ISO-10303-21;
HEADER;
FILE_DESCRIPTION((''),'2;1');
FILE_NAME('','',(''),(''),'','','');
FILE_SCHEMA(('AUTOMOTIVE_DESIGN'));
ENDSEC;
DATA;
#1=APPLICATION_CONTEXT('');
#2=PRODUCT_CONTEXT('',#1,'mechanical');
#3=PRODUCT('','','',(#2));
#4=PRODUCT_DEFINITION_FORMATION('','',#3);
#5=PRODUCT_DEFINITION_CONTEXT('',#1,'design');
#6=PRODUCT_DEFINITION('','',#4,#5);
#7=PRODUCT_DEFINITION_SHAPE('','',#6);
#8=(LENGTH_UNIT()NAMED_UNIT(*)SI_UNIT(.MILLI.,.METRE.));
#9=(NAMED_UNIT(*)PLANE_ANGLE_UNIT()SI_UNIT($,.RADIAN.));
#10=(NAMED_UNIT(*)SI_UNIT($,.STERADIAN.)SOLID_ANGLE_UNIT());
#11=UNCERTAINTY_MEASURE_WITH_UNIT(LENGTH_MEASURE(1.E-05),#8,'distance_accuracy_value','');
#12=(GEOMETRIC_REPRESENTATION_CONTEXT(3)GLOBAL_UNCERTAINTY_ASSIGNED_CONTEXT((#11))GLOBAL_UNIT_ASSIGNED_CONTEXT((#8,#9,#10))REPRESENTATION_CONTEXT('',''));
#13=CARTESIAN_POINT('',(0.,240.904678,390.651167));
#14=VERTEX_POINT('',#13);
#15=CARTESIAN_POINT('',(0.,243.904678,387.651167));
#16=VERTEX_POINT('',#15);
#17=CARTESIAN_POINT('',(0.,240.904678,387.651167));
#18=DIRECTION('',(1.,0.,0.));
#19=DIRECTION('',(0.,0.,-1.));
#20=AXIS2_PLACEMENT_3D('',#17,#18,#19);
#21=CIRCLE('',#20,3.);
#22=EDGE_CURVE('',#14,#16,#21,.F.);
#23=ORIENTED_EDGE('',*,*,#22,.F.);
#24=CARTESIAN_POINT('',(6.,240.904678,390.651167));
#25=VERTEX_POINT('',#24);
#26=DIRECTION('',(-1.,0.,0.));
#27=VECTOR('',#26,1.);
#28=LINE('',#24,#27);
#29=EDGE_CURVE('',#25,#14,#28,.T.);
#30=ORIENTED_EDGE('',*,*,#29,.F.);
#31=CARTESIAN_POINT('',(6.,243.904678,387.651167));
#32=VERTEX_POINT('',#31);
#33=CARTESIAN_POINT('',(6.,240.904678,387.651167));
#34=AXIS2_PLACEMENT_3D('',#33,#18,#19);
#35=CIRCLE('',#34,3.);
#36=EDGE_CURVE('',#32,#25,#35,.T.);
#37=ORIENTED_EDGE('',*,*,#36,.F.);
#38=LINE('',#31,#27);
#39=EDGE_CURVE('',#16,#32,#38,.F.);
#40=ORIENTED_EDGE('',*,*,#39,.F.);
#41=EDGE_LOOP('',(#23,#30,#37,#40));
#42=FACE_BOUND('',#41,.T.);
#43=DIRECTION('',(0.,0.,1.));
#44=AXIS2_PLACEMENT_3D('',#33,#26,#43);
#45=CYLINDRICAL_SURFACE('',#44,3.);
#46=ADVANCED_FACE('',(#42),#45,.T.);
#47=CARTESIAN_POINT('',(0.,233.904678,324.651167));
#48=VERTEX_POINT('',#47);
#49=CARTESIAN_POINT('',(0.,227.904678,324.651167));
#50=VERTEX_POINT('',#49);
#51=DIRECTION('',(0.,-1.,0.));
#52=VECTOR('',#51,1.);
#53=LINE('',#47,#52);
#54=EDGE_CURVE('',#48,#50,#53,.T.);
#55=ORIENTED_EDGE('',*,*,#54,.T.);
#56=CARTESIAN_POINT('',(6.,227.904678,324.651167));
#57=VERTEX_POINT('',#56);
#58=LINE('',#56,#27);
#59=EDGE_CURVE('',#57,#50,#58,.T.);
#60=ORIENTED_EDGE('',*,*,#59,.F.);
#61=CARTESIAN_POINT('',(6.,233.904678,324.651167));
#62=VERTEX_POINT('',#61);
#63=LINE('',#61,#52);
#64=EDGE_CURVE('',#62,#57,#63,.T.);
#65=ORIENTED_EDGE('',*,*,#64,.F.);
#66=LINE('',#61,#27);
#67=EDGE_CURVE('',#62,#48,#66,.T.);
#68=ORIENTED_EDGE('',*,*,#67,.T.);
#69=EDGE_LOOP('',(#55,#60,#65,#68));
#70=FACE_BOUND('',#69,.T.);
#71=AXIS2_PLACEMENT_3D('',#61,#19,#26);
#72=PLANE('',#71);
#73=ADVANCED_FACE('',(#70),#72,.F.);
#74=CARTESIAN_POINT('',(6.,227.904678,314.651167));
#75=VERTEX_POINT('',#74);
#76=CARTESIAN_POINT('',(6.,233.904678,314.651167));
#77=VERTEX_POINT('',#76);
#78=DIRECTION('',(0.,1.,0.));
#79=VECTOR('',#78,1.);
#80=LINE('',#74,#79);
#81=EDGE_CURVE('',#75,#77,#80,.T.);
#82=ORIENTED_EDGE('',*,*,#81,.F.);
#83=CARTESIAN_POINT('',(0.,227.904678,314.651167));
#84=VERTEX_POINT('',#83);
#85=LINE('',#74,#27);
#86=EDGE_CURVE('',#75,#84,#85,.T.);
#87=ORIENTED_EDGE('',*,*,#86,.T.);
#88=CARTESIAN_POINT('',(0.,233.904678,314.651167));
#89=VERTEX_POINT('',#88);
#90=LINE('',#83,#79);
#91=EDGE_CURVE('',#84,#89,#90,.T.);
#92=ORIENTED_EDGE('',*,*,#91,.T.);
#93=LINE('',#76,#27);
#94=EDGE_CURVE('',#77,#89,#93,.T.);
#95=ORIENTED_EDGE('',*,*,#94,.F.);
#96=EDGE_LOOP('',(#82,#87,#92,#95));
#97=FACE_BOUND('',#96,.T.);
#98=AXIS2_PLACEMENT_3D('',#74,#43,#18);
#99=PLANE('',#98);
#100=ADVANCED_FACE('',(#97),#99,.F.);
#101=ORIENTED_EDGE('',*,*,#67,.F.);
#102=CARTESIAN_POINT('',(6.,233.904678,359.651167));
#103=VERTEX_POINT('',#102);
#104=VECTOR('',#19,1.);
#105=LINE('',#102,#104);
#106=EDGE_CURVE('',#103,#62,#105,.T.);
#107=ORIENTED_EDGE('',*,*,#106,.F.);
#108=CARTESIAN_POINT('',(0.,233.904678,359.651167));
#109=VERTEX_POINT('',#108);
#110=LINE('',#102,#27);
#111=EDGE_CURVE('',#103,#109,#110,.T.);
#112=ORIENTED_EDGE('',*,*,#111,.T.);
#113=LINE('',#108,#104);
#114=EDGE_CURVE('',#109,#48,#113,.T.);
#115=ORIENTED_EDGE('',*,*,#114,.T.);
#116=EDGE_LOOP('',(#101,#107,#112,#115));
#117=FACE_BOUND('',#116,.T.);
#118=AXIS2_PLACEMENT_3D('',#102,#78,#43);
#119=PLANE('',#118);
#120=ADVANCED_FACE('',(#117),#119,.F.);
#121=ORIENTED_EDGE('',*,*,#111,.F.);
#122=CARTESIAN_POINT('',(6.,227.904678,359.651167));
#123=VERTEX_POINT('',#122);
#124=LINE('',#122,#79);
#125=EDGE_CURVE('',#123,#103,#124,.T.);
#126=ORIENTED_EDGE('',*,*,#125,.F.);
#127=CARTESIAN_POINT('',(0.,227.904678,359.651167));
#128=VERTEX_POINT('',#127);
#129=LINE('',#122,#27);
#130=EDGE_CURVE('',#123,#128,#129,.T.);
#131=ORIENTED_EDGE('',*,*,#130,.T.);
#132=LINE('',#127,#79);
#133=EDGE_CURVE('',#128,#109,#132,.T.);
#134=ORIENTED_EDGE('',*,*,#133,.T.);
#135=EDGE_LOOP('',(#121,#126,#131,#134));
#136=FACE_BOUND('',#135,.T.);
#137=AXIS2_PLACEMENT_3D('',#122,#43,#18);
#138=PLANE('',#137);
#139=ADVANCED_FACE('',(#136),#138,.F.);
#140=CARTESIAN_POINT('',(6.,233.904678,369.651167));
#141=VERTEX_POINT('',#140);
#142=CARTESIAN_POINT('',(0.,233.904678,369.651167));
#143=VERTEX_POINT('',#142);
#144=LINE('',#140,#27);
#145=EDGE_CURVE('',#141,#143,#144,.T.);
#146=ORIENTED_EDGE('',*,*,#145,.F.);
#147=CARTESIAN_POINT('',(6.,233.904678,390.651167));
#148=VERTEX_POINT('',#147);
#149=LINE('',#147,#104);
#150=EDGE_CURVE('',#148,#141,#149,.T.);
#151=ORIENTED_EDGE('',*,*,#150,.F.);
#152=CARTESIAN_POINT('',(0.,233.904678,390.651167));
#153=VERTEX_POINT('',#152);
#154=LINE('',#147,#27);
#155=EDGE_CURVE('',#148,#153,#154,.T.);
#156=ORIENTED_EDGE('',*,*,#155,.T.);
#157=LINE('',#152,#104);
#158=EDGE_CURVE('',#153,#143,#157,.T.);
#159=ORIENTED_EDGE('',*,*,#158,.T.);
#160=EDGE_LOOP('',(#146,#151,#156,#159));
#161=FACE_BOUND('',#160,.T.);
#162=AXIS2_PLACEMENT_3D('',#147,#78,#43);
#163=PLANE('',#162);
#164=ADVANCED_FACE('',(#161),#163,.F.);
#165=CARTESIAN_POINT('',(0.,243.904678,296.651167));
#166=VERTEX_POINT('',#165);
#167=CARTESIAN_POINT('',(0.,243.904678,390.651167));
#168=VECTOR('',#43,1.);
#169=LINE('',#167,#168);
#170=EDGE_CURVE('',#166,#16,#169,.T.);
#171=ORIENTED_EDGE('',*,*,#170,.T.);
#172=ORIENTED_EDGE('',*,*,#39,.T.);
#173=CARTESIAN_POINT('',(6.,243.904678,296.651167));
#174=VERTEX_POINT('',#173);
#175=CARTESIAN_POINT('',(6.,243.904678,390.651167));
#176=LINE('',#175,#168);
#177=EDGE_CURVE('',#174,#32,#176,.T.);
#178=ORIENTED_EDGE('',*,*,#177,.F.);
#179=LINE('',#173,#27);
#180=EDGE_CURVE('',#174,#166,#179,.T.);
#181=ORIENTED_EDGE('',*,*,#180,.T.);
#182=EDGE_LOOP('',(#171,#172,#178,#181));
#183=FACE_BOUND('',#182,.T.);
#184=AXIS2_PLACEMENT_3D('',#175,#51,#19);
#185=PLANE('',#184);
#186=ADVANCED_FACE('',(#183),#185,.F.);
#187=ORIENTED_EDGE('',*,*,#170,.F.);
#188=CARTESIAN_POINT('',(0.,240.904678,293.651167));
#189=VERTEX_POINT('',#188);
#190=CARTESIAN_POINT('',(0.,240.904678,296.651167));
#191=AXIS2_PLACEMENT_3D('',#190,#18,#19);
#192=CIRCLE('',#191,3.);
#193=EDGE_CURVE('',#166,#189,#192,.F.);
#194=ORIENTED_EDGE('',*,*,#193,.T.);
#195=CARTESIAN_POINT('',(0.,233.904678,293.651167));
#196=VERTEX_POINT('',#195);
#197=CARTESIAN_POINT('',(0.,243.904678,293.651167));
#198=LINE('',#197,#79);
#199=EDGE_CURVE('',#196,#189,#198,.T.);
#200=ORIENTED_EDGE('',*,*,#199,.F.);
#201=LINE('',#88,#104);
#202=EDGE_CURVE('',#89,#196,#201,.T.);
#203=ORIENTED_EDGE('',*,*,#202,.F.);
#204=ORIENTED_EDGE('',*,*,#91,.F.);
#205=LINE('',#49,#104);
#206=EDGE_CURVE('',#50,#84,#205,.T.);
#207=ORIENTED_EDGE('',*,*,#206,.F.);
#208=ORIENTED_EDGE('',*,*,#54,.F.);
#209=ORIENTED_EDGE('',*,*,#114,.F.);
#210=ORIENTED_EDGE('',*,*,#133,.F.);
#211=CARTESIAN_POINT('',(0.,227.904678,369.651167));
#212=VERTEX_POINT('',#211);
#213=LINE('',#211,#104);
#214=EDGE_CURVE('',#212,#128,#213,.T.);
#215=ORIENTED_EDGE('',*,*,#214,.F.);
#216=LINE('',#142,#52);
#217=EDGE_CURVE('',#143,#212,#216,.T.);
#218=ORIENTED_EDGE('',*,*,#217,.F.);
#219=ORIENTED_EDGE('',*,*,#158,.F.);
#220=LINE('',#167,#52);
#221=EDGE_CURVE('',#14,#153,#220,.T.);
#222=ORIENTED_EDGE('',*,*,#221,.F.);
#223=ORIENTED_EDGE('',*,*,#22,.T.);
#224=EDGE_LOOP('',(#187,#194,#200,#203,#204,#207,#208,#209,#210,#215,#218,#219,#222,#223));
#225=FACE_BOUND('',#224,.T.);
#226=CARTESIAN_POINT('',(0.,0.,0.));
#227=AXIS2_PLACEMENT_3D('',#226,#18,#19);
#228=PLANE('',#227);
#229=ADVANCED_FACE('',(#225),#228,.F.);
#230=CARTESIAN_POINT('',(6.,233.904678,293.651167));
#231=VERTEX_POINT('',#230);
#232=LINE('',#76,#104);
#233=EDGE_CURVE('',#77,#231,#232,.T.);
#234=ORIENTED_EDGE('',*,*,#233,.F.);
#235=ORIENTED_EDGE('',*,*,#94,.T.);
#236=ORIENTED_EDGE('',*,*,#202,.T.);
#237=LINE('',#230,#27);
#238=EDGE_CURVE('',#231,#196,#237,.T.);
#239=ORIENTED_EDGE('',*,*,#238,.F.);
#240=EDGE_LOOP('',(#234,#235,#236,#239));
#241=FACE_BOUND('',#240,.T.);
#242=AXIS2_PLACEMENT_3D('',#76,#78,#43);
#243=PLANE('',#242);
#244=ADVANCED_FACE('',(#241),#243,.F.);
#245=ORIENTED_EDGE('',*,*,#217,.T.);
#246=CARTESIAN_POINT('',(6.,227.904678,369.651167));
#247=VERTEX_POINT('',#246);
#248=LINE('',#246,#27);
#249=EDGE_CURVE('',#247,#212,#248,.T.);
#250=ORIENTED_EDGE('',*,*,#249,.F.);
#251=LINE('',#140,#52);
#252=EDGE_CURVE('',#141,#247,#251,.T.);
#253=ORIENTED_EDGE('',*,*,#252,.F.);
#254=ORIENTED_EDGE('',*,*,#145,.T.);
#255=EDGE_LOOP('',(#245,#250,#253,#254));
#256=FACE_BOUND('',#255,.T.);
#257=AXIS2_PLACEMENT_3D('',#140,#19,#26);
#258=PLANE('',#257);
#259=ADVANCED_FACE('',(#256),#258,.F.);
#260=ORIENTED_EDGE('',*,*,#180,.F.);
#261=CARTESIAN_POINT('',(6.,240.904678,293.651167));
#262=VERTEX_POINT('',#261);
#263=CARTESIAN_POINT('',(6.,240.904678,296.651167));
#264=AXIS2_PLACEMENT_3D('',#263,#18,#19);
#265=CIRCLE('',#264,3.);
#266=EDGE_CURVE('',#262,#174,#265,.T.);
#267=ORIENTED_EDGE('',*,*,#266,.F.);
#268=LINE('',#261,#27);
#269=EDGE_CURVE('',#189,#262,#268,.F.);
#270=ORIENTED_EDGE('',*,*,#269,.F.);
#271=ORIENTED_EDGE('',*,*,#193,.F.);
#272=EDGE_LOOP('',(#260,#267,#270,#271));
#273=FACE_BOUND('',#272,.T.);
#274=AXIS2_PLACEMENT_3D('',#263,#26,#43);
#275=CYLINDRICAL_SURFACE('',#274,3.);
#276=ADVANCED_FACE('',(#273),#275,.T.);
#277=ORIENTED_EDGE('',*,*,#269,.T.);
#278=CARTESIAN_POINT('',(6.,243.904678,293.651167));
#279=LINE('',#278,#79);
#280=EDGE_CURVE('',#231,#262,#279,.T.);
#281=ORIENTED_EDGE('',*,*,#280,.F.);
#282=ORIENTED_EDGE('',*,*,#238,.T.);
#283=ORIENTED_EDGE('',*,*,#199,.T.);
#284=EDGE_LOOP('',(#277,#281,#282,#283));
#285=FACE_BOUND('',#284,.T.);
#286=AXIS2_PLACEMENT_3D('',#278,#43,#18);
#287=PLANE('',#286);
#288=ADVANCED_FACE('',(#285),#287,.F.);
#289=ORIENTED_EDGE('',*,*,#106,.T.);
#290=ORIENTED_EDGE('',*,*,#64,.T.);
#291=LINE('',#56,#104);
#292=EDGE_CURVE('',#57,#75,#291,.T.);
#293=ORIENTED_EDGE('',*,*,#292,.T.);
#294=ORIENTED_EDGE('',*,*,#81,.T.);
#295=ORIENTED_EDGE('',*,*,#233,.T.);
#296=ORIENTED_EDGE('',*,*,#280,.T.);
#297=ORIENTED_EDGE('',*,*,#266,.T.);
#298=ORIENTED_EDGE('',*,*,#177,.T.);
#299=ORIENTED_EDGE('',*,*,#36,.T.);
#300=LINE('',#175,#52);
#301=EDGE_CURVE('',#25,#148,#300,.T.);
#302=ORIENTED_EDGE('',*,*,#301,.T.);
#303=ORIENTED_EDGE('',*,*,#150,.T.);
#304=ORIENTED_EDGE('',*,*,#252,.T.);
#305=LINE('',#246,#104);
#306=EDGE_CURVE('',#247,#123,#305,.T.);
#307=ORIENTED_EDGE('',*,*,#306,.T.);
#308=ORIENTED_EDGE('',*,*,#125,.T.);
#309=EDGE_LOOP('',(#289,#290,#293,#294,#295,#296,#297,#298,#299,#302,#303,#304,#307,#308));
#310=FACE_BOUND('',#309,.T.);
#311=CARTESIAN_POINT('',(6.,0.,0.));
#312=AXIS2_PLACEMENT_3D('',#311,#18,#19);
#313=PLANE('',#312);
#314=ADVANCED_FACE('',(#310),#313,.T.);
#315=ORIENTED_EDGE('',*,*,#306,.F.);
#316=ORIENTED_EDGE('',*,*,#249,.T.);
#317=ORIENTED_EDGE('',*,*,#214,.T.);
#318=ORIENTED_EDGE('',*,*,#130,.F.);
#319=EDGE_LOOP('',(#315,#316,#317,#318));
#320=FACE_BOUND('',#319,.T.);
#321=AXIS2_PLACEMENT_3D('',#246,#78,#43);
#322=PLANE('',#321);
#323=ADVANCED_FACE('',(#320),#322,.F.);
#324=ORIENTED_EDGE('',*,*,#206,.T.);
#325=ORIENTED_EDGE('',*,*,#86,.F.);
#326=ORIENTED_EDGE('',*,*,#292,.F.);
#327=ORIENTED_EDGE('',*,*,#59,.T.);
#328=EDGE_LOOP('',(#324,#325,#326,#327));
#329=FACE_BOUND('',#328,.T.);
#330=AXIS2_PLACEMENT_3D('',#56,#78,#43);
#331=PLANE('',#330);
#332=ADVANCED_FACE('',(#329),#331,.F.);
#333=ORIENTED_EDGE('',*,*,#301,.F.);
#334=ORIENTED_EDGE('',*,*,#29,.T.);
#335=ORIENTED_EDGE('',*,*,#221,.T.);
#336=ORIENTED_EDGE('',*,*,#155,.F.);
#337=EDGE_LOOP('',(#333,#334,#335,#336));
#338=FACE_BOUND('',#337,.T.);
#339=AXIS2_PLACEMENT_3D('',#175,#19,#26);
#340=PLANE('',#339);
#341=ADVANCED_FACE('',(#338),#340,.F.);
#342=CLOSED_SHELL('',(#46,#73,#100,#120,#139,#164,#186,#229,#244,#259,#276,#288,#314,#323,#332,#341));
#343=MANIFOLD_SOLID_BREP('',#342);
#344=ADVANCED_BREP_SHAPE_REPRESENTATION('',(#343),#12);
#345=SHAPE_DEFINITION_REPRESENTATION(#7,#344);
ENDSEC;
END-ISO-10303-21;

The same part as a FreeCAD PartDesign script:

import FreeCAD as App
import Part
import Sketcher

V = App.Vector


def edges_at(feature, points):
    """Names of the edges that pass closest to the given points."""
    edges = feature.Shape.Edges
    near = lambda p: min(range(len(edges)), key=lambda i: edges[i].distToShape(Part.Vertex(*p))[0])
    return sorted({f"Edge{near(p) + 1}" for p in points})

doc = App.newDocument("Part")
params = doc.addObject("Spreadsheet::Sheet", "Params")
for row, (alias, value) in enumerate([
    ("sketch1_width", "10 mm"),
    ("sketch1_width2", "6 mm"),
    ("sketch1_height", "97 mm"),
    ("sketch1_height2", "21 mm"),
    ("pad1_length", "6 mm"),
    ("fillet_radius", "3 mm"),
], start=1):
    params.set(f"A{row}", alias)
    params.set(f"B{row}", "=" + value)
    params.setAlias(f"B{row}", alias)

body = doc.addObject("PartDesign::Body", "Body")

# Sketch on YZ plane
sketch1 = body.newObject("Sketcher::SketchObject", "Sketch")
sketch1.AttachmentSupport = (doc.getObject("YZ_Plane"), [""])
sketch1.MapMode = "FlatFace"
sketch1.addGeometry([
    Part.LineSegment(V(244, 294, 0), V(244, 391, 0)),  # 0
    Part.LineSegment(V(244, 391, 0), V(234, 391, 0)),  # 1
    Part.LineSegment(V(234, 391, 0), V(234, 370, 0)),  # 2
    Part.LineSegment(V(234, 370, 0), V(228, 370, 0)),  # 3
    Part.LineSegment(V(228, 370, 0), V(228, 360, 0)),  # 4
    Part.LineSegment(V(228, 360, 0), V(234, 360, 0)),  # 5
    Part.LineSegment(V(234, 360, 0), V(234, 325, 0)),  # 6
    Part.LineSegment(V(234, 325, 0), V(228, 325, 0)),  # 7
    Part.LineSegment(V(228, 325, 0), V(228, 315, 0)),  # 8
    Part.LineSegment(V(228, 315, 0), V(234, 315, 0)),  # 9
    Part.LineSegment(V(234, 315, 0), V(234, 294, 0)),  # 10
    Part.LineSegment(V(234, 294, 0), V(244, 294, 0)),  # 11
], False)
sketch1.addConstraint([
    Sketcher.Constraint("Coincident", 0, 2, 1, 1),
    Sketcher.Constraint("Coincident", 1, 2, 2, 1),
    Sketcher.Constraint("Coincident", 2, 2, 3, 1),
    Sketcher.Constraint("Coincident", 3, 2, 4, 1),
    Sketcher.Constraint("Coincident", 4, 2, 5, 1),
    Sketcher.Constraint("Coincident", 5, 2, 6, 1),
    Sketcher.Constraint("Coincident", 6, 2, 7, 1),
    Sketcher.Constraint("Coincident", 7, 2, 8, 1),
    Sketcher.Constraint("Coincident", 8, 2, 9, 1),
    Sketcher.Constraint("Coincident", 9, 2, 10, 1),
    Sketcher.Constraint("Coincident", 10, 2, 11, 1),
    Sketcher.Constraint("Coincident", 11, 2, 0, 1),
    Sketcher.Constraint("Vertical", 0),
    Sketcher.Constraint("Horizontal", 1),
    Sketcher.Constraint("Vertical", 2),
    Sketcher.Constraint("Horizontal", 3),
    Sketcher.Constraint("Vertical", 4),
    Sketcher.Constraint("Horizontal", 5),
    Sketcher.Constraint("Vertical", 6),
    Sketcher.Constraint("Horizontal", 7),
    Sketcher.Constraint("Vertical", 8),
    Sketcher.Constraint("Horizontal", 9),
    Sketcher.Constraint("Vertical", 10),
    Sketcher.Constraint("Horizontal", 11),
    Sketcher.Constraint("Vertical", 2, 2, 5, 2),
    Sketcher.Constraint("Vertical", 4, 2, 7, 2),
    Sketcher.Constraint("Vertical", 6, 2, 9, 2),
    Sketcher.Constraint("Equal", 11, 4),
    Sketcher.Constraint("Equal", 4, 8),
    Sketcher.Constraint("Equal", 2, 10),
    Sketcher.Constraint("DistanceX", 1, 2, 1, 1, 10.0),
    Sketcher.Constraint("DistanceX", 3, 2, 3, 1, 6.0),
    Sketcher.Constraint("DistanceY", 0, 1, 0, 2, 97.0),
    Sketcher.Constraint("DistanceY", 2, 2, 2, 1, 21.0),
    Sketcher.Constraint("DistanceX", -1, 1, 0, 2, 243.904678),
    Sketcher.Constraint("DistanceY", -1, 1, 0, 2, 390.651167),
])
sketch1.setExpression("Constraints[30]", "Params.sketch1_width")
sketch1.setExpression("Constraints[31]", "Params.sketch1_width2")
sketch1.setExpression("Constraints[32]", "Params.sketch1_height")
sketch1.setExpression("Constraints[33]", "Params.sketch1_height2")
pad1 = body.newObject("PartDesign::Pad", "Pad")
pad1.Profile = sketch1
pad1.setExpression("Length", "Params.pad1_length")
doc.recompute()

fillet = body.newObject("PartDesign::Fillet", "Fillet")
fillet.Base = (pad1, edges_at(pad1, [(3, 243.905, 390.651), (3, 243.905, 293.651)]))
fillet.setExpression("Radius", "Params.fillet_radius")

doc.recompute()
